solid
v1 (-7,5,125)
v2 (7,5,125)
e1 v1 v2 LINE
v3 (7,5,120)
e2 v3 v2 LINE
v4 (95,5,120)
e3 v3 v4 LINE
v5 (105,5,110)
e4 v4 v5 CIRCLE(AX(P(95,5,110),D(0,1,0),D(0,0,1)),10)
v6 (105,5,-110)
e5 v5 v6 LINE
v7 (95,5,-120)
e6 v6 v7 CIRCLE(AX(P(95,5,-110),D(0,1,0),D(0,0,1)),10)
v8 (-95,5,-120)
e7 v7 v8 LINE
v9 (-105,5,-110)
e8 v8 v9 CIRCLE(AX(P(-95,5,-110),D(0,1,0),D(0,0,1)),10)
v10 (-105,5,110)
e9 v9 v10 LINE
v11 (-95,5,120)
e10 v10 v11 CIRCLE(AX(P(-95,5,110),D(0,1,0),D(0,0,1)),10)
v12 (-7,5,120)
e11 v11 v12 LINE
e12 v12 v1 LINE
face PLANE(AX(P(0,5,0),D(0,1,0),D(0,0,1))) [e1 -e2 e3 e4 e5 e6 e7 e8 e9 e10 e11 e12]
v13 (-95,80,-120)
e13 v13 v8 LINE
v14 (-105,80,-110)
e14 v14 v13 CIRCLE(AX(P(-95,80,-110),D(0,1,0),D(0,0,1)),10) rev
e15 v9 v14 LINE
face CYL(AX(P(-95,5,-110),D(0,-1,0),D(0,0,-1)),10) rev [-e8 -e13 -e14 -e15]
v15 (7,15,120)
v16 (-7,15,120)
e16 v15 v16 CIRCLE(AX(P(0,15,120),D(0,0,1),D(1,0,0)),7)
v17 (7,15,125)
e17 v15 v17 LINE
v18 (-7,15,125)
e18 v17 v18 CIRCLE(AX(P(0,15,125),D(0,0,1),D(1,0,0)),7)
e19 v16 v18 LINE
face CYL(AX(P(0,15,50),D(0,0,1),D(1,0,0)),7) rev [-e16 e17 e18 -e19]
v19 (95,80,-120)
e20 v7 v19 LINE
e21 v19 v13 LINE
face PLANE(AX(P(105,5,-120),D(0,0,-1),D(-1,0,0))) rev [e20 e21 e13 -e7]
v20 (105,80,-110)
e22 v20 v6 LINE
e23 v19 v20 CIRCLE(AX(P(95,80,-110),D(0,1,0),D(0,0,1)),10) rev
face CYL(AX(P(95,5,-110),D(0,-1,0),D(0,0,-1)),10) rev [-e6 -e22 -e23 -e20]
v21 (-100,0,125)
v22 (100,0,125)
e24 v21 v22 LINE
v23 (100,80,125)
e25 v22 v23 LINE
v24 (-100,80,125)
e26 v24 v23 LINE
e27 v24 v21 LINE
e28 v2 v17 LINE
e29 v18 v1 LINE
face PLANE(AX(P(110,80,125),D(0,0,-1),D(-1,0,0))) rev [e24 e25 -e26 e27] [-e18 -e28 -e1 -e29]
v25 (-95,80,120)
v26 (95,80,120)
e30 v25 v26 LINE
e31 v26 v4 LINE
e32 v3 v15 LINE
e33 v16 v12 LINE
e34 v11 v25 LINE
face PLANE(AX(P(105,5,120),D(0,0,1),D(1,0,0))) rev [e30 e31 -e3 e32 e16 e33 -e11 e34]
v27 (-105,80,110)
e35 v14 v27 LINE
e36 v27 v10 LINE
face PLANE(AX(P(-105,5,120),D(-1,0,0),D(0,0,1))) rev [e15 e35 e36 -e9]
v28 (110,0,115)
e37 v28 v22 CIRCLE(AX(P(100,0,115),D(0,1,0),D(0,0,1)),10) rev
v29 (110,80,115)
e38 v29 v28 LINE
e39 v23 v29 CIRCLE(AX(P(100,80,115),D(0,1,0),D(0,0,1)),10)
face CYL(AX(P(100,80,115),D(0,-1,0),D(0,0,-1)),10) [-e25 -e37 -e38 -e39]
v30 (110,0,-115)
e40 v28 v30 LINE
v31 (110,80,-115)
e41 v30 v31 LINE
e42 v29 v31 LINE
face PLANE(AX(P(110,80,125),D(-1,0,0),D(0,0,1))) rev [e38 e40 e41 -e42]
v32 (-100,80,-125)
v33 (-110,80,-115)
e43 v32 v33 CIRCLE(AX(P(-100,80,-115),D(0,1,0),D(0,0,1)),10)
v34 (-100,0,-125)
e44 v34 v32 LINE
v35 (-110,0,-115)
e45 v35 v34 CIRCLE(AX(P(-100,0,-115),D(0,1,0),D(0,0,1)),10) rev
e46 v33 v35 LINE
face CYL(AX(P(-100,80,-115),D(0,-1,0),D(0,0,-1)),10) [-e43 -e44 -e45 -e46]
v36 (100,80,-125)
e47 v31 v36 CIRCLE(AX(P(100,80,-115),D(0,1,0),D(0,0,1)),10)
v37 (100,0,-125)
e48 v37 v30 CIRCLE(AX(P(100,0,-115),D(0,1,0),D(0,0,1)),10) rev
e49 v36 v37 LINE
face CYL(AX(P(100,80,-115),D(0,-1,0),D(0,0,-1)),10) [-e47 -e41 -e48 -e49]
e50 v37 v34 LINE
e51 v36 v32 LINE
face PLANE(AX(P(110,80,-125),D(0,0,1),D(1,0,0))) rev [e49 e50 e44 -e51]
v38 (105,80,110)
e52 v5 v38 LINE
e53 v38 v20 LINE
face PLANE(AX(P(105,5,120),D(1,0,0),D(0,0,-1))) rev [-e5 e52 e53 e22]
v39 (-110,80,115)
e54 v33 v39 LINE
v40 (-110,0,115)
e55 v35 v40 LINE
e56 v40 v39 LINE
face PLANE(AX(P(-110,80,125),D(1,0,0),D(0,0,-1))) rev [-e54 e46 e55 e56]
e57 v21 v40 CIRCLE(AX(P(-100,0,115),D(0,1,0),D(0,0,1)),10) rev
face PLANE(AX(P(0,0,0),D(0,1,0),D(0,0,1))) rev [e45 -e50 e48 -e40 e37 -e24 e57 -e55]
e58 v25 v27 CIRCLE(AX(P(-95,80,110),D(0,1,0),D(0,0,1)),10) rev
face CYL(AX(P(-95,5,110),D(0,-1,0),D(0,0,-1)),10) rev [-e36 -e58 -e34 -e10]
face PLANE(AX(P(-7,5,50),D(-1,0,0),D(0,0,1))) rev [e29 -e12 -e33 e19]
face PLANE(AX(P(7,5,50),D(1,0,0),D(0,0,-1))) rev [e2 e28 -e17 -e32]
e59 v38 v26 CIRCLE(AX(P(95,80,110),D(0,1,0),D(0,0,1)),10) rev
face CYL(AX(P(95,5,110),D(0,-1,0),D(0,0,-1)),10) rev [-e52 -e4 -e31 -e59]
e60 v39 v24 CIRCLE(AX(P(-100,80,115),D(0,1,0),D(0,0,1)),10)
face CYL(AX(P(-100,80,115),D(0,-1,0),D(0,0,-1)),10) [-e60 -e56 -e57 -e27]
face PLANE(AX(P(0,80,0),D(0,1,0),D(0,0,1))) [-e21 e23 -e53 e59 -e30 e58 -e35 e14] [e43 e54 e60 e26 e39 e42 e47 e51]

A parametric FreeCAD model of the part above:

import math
import FreeCAD as App
import Part
import Sketcher

V = App.Vector


def edges_at(feature, points):
    """Names of the edges that pass closest to the given points."""
    edges = feature.Shape.Edges
    near = lambda p: min(range(len(edges)), key=lambda i: edges[i].distToShape(Part.Vertex(*p))[0])
    return sorted({f"Edge{near(p) + 1}" for p in points})

doc = App.newDocument("Part")
body = doc.addObject("PartDesign::Body", "Body")

# Sketch on XZ plane
sketch1 = body.newObject("Sketcher::SketchObject", "Sketch")
sketch1.AttachmentSupport = (doc.getObject("XZ_Plane"), [""])
sketch1.MapMode = "FlatFace"
sketch1.addGeometry(Part.LineSegment(V(-110, -125, 0), V(-110, 125, 0)), False)
sketch1.addGeometry(Part.LineSegment(V(-110, 125, 0), V(110, 125, 0)), False)
sketch1.addGeometry(Part.LineSegment(V(110, 125, 0), V(110, -125, 0)), False)
sketch1.addGeometry(Part.LineSegment(V(110, -125, 0), V(-110, -125, 0)), False)
sketch1.addConstraint(Sketcher.Constraint("Coincident", 0, 2, 1, 1))
sketch1.addConstraint(Sketcher.Constraint("Coincident", 1, 2, 2, 1))
sketch1.addConstraint(Sketcher.Constraint("Coincident", 2, 2, 3, 1))
sketch1.addConstraint(Sketcher.Constraint("Coincident", 3, 2, 0, 1))
sketch1.addConstraint(Sketcher.Constraint("Vertical", 0))
sketch1.addConstraint(Sketcher.Constraint("Horizontal", 1))
sketch1.addConstraint(Sketcher.Constraint("Vertical", 2))
sketch1.addConstraint(Sketcher.Constraint("Horizontal", 3))
sketch1.addConstraint(Sketcher.Constraint("Symmetric", 0, 2, 2, 2, -1, 1))
sketch1.addConstraint(Sketcher.Constraint("DistanceX", 1, 1, 1, 2, 220.0))
sketch1.addConstraint(Sketcher.Constraint("DistanceY", 0, 1, 0, 2, 250.0))
pad1 = body.newObject("PartDesign::Pad", "Pad")
pad1.Profile = sketch1
pad1.Length = 80
pad1.Reversed = True

# Sketch on XZ plane
sketch2 = body.newObject("Sketcher::SketchObject", "Sketch001")
sketch2.AttachmentSupport = (doc.getObject("XZ_Plane"), [""])
sketch2.MapMode = "FlatFace"
sketch2.AttachmentOffset = App.Placement(V(0, 0, -80), App.Rotation())
sketch2.addGeometry(Part.LineSegment(V(-105, -120, 0), V(-105, 120, 0)), False)
sketch2.addGeometry(Part.LineSegment(V(-105, 120, 0), V(105, 120, 0)), False)
sketch2.addGeometry(Part.LineSegment(V(105, 120, 0), V(105, -120, 0)), False)
sketch2.addGeometry(Part.LineSegment(V(105, -120, 0), V(-105, -120, 0)), False)
sketch2.addConstraint(Sketcher.Constraint("Coincident", 0, 2, 1, 1))
sketch2.addConstraint(Sketcher.Constraint("Coincident", 1, 2, 2, 1))
sketch2.addConstraint(Sketcher.Constraint("Coincident", 2, 2, 3, 1))
sketch2.addConstraint(Sketcher.Constraint("Coincident", 3, 2, 0, 1))
sketch2.addConstraint(Sketcher.Constraint("Vertical", 0))
sketch2.addConstraint(Sketcher.Constraint("Horizontal", 1))
sketch2.addConstraint(Sketcher.Constraint("Vertical", 2))
sketch2.addConstraint(Sketcher.Constraint("Horizontal", 3))
sketch2.addConstraint(Sketcher.Constraint("Symmetric", 0, 2, 2, 2, -1, 1))
sketch2.addConstraint(Sketcher.Constraint("DistanceX", 1, 1, 1, 2, 210.0))
sketch2.addConstraint(Sketcher.Constraint("DistanceY", 0, 1, 0, 2, 240.0))
pocket1 = body.newObject("PartDesign::Pocket", "Pocket")
pocket1.Profile = sketch2
pocket1.Length = 75
pocket1.Reversed = True
doc.recompute()

fillet = body.newObject("PartDesign::Fillet", "Fillet")
fillet.Base = (pocket1, edges_at(pocket1, [
    (-105, 42.5, 120),
    (-105, 42.5, -120),
    (105, 42.5, -120),
    (105, 42.5, 120),
    (-110, 40, -125),
    (110, 40, -125),
    (110, 40, 125),
    (-110, 40, 125),
]))
fillet.Radius = 10

# Sketch on XY plane
sketch3 = body.newObject("Sketcher::SketchObject", "Sketch002")
sketch3.AttachmentSupport = (doc.getObject("XY_Plane"), [""])
sketch3.MapMode = "FlatFace"
sketch3.AttachmentOffset = App.Placement(V(0, 0, 125), App.Rotation())
sketch3.addGeometry(Part.LineSegment(V(-7, 15, 0), V(-7, 5, 0)), False)
sketch3.addGeometry(Part.LineSegment(V(-7, 5, 0), V(7, 5, 0)), False)
sketch3.addGeometry(Part.LineSegment(V(7, 5, 0), V(7, 15, 0)), False)
sketch3.addGeometry(Part.ArcOfCircle(Part.Circle(V(0, 15, 0), V(0, 0, 1), 7), math.radians(0), math.radians(180)), False)
sketch3.addConstraint(Sketcher.Constraint("Coincident", 0, 2, 1, 1))
sketch3.addConstraint(Sketcher.Constraint("Coincident", 1, 2, 2, 1))
sketch3.addConstraint(Sketcher.Constraint("Tangent", 2, 2, 3, 1))
sketch3.addConstraint(Sketcher.Constraint("Tangent", 3, 2, 0, 1))
sketch3.addConstraint(Sketcher.Constraint("Vertical", 0))
sketch3.addConstraint(Sketcher.Constraint("Horizontal", 1))
sketch3.addConstraint(Sketcher.Constraint("Vertical", 2))
sketch3.addConstraint(Sketcher.Constraint("PointOnObject", 3, 3, -2))
sketch3.addConstraint(Sketcher.Constraint("Radius", 3, 7.0))
sketch3.addConstraint(Sketcher.Constraint("DistanceY", 0, 2, 0, 1, 10.0))
sketch3.addConstraint(Sketcher.Constraint("DistanceY", -1, 1, 3, 3, 15.0))
pocket2 = body.newObject("PartDesign::Pocket", "Pocket001")
pocket2.Profile = sketch3
pocket2.Length = 75

doc.recompute()
